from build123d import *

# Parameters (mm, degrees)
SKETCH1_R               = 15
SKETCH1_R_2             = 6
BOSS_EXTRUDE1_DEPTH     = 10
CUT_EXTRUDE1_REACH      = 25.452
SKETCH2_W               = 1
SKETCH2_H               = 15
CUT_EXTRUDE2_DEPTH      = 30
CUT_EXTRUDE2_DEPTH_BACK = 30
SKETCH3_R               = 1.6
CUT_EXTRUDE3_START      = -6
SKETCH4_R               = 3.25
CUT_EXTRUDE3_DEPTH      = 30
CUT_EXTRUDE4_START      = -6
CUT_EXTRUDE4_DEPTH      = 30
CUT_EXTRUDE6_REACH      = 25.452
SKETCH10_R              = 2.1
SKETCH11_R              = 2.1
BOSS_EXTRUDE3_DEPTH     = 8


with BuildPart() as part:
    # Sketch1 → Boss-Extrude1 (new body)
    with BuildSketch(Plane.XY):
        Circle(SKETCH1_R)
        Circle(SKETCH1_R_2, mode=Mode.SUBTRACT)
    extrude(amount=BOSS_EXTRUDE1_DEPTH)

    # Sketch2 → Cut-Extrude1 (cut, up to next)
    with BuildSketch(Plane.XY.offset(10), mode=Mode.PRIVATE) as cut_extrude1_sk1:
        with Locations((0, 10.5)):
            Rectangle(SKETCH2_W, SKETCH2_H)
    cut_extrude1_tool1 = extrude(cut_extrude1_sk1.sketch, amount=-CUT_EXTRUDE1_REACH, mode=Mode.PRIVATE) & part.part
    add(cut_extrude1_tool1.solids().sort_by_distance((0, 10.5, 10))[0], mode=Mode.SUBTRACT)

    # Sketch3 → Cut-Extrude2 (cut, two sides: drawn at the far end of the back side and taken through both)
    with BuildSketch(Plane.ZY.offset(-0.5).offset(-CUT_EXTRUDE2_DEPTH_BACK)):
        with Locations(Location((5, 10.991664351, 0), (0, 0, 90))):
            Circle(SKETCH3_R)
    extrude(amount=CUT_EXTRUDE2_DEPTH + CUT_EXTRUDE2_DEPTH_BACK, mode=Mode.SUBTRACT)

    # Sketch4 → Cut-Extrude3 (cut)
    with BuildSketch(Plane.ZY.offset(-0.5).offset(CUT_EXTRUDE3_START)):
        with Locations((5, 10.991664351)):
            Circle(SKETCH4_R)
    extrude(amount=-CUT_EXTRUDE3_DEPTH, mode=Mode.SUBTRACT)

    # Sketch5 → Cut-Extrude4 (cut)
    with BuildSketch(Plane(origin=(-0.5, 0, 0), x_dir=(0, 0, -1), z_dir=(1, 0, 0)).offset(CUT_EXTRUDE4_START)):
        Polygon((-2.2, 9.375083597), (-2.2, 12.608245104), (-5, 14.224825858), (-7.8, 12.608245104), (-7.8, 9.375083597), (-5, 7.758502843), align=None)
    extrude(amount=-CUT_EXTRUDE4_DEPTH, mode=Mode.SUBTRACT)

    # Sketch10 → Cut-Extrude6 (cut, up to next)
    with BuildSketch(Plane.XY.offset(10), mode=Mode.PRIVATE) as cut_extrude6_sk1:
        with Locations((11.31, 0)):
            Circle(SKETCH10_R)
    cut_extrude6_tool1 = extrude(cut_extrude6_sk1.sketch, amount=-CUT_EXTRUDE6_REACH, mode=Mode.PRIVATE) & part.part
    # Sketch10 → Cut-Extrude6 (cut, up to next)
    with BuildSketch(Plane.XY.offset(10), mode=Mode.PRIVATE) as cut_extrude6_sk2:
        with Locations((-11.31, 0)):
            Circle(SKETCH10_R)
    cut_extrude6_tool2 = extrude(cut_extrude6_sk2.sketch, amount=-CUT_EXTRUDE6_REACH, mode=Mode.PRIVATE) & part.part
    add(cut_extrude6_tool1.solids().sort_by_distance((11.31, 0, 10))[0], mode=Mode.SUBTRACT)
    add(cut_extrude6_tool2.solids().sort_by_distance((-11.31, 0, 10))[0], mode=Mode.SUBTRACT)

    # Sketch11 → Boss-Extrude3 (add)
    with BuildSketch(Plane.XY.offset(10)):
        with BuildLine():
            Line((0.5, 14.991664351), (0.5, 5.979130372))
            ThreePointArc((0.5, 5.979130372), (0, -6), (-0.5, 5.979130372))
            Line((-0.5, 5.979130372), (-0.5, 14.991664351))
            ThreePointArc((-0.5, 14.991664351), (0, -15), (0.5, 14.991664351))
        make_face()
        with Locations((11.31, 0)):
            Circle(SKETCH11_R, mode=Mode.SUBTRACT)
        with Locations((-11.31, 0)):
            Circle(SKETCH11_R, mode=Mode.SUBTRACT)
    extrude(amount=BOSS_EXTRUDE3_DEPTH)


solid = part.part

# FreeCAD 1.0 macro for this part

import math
import FreeCAD as App
import Part
import Sketcher
Q = App.Units.Quantity


def add_polygon(sketch, points):
    """Adds a closed chain of lines whose ends are joined by coincident constraints."""
    first, n = sketch.GeometryCount, len(points)
    for a, b in zip(points, points[1:] + points[:1]):
        sketch.addGeometry(Part.LineSegment(App.Vector(*a, 0), App.Vector(*b, 0)), False)
    for i in range(n):
        sketch.addConstraint(Sketcher.Constraint("Coincident", first + i, 2, first + (i + 1) % n, 1))

doc = App.newDocument("Part")
params = doc.addObject("Spreadsheet::Sheet", "Params")
for row, (alias, value) in enumerate([
    ("sketch1_diameter", "30 mm"),
    ("sketch1_diameter2", "12 mm"),
    ("pad1_length", "10 mm"),
    ("sketch2_width", "1 mm"),
    ("sketch2_height", "15 mm"),
    ("sketch3_diameter", "3.2 mm"),
    ("sketch4_diameter", "6.5 mm"),
    ("pocket3_length", "30 mm"),
    ("pocket4_length", "30 mm"),
    ("sketch6_diameter", "4.2 mm"),
    ("sketch7_diameter", "4.2 mm"),
    ("sketch8_radius", "6 mm"),
    ("sketch8_radius2", "15 mm"),
    ("sketch8_diameter", "4.2 mm"),
    ("pad2_length", "8 mm"),
], start=1):
    params.set(f"A{row}", alias)
    params.set(f"B{row}", "=" + value)
    params.setAlias(f"B{row}", alias)

body = doc.addObject("PartDesign::Body", "Body")

# Sketch on XY plane
sketch1 = doc.addObject("Sketcher::SketchObject", "Sketch")
body.addObject(sketch1)
sketch1.AttachmentSupport = (doc.XY_Plane, [""])
sketch1.MapMode = "FlatFace"
sketch1.addGeometry([
    Part.Circle(App.Vector(0, 0, 0), App.Vector(0, 0, 1), 15),
    Part.Circle(App.Vector(0, 0, 0), App.Vector(0, 0, 1), 6),
], False)
sketch1.addConstraint([
    Sketcher.Constraint("Coincident", 0, 3, -1, 1),
    Sketcher.Constraint("Coincident", 1, 3, -1, 1),
    Sketcher.Constraint("Diameter", 0, Q("30 mm")),
    Sketcher.Constraint("Diameter", 1, Q("12 mm")),
])
sketch1.setExpression("Constraints[2]", "Params.sketch1_diameter")
sketch1.setExpression("Constraints[3]", "Params.sketch1_diameter2")
pad1 = doc.addObject("PartDesign::Pad", "Pad")
body.addObject(pad1)
pad1.Profile = sketch1
pad1.setExpression("Length", "Params.pad1_length")

# Sketch on XY plane
sketch2 = doc.addObject("Sketcher::SketchObject", "Sketch001")
body.addObject(sketch2)
sketch2.AttachmentSupport = (doc.XY_Plane, [""])
sketch2.MapMode = "FlatFace"
sketch2.AttachmentOffset = App.Placement(App.Vector(0, 0, 10), App.Rotation())
add_polygon(sketch2, [(-0.5, 18), (-0.5, 3), (0.5, 3), (0.5, 18)])  # lines 0-3
sketch2.addConstraint([
    Sketcher.Constraint("Vertical", 0),
    Sketcher.Constraint("Horizontal", 1),
    Sketcher.Constraint("Vertical", 2),
    Sketcher.Constraint("Horizontal", 3),
    Sketcher.Constraint("DistanceX", 1, 1, 1, 2, Q("1 mm")),
    Sketcher.Constraint("DistanceY", 0, 2, 0, 1, Q("15 mm")),
    Sketcher.Constraint("DistanceY", -1, 1, 0, 2, Q("3 mm")),
    Sketcher.Constraint("DistanceX", 0, 2, -1, 1, Q("0.5 mm")),
])
sketch2.setExpression("Constraints[8]", "Params.sketch2_width")
sketch2.setExpression("Constraints[9]", "Params.sketch2_height")
pocket1 = doc.addObject("PartDesign::Pocket", "Pocket")
body.addObject(pocket1)
pocket1.Profile = sketch2
pocket1.Type = "UpToFirst"

# Sketch on YZ plane
sketch3 = doc.addObject("Sketcher::SketchObject", "Sketch002")
body.addObject(sketch3)
sketch3.AttachmentSupport = (doc.YZ_Plane, [""])
sketch3.MapMode = "FlatFace"
sketch3.AttachmentOffset = App.Placement(App.Vector(0, 0, 0.5), App.Rotation())
sketch3.addGeometry(Part.Circle(App.Vector(10.991664, 5, 0), App.Vector(0, 0, 1), 1.6), False)
sketch3.addConstraint([
    Sketcher.Constraint("Diameter", 0, Q("3.2 mm")),
    Sketcher.Constraint("DistanceY", -1, 1, 0, 3, Q("5 mm")),
    Sketcher.Constraint("DistanceX", -1, 1, 0, 3, Q("10.991664 mm")),
])
sketch3.setExpression("Constraints[0]", "Params.sketch3_diameter")
pocket2 = doc.addObject("PartDesign::Pocket", "Pocket001")
body.addObject(pocket2)
pocket2.Profile = sketch3
pocket2.Type = "ThroughAll"
pocket2.Midplane = True

# Sketch on YZ plane
sketch4 = doc.addObject("Sketcher::SketchObject", "Sketch003")
body.addObject(sketch4)
sketch4.AttachmentSupport = (doc.YZ_Plane, [""])
sketch4.MapMode = "FlatFace"
sketch4.AttachmentOffset = App.Placement(App.Vector(0, 0, 6.5), App.Rotation())
sketch4.addGeometry(Part.Circle(App.Vector(10.991664, 5, 0), App.Vector(0, 0, 1), 3.25), False)
sketch4.addConstraint([
    Sketcher.Constraint("Diameter", 0, Q("6.5 mm")),
    Sketcher.Constraint("DistanceY", -1, 1, 0, 3, Q("5 mm")),
    Sketcher.Constraint("DistanceX", -1, 1, 0, 3, Q("10.991664 mm")),
])
sketch4.setExpression("Constraints[0]", "Params.sketch4_diameter")
pocket3 = doc.addObject("PartDesign::Pocket", "Pocket002")
body.addObject(pocket3)
pocket3.Profile = sketch4
pocket3.setExpression("Length", "Params.pocket3_length")
pocket3.Reversed = True

# Sketch on YZ plane
sketch5 = doc.addObject("Sketcher::SketchObject", "Sketch004")
body.addObject(sketch5)
sketch5.AttachmentSupport = (doc.YZ_Plane, [""])
sketch5.MapMode = "FlatFace"
sketch5.AttachmentOffset = App.Placement(App.Vector(0, 0, -6.5), App.Rotation())
add_polygon(sketch5, [(9.375084, 2.2), (12.608245, 2.2), (14.224826, 5), (12.608245, 7.8), (9.375084, 7.8), (7.758503, 5)])  # lines 0-5
sketch5.addConstraint([
    Sketcher.Constraint("Horizontal", 0),
    Sketcher.Constraint("Horizontal", 3),
    Sketcher.Constraint("Parallel", 1, 4),
    Sketcher.Constraint("Parallel", 2, 5),
    Sketcher.Constraint("Horizontal", 1, 2, 4, 2),
    Sketcher.Constraint("Vertical", 0, 2, 2, 2),
    Sketcher.Constraint("Vertical", 3, 2, 5, 2),
    Sketcher.Constraint("Angle", 1, Q("60 deg")),
    Sketcher.Constraint("DistanceY", -1, 1, 1, 2, Q("5 mm")),
    Sketcher.Constraint("DistanceY", -1, 1, 0, 2, Q("2.2 mm")),
    Sketcher.Constraint("DistanceX", 0, 1, 0, 2, Q("3.233162 mm")),
    Sketcher.Constraint("DistanceX", -1, 1, 0, 2, Q("12.608245 mm")),
])
pocket4 = doc.addObject("PartDesign::Pocket", "Pocket003")
body.addObject(pocket4)
pocket4.Profile = sketch5
pocket4.setExpression("Length", "Params.pocket4_length")

# Sketch on XY plane
sketch6 = doc.addObject("Sketcher::SketchObject", "Sketch005")
body.addObject(sketch6)
sketch6.AttachmentSupport = (doc.XY_Plane, [""])
sketch6.MapMode = "FlatFace"
sketch6.AttachmentOffset = App.Placement(App.Vector(0, 0, 10), App.Rotation())
sketch6.addGeometry(Part.Circle(App.Vector(11.31, 0, 0), App.Vector(0, 0, 1), 2.1), False)
sketch6.addConstraint([
    Sketcher.Constraint("PointOnObject", 0, 3, -1),
    Sketcher.Constraint("Diameter", 0, Q("4.2 mm")),
    Sketcher.Constraint("DistanceX", -1, 1, 0, 3, Q("11.31 mm")),
])
sketch6.setExpression("Constraints[1]", "Params.sketch6_diameter")
pocket5 = doc.addObject("PartDesign::Pocket", "Pocket004")
body.addObject(pocket5)
pocket5.Profile = sketch6
pocket5.Type = "UpToFirst"

# Sketch on XY plane
sketch7 = doc.addObject("Sketcher::SketchObject", "Sketch006")
body.addObject(sketch7)
sketch7.AttachmentSupport = (doc.XY_Plane, [""])
sketch7.MapMode = "FlatFace"
sketch7.AttachmentOffset = App.Placement(App.Vector(0, 0, 10), App.Rotation())
sketch7.addGeometry(Part.Circle(App.Vector(-11.31, 0, 0), App.Vector(0, 0, 1), 2.1), False)
sketch7.addConstraint([
    Sketcher.Constraint("PointOnObject", 0, 3, -1),
    Sketcher.Constraint("Diameter", 0, Q("4.2 mm")),
    Sketcher.Constraint("DistanceX", 0, 3, -1, 1, Q("11.31 mm")),
])
sketch7.setExpression("Constraints[1]", "Params.sketch7_diameter")
pocket6 = doc.addObject("PartDesign::Pocket", "Pocket005")
body.addObject(pocket6)
pocket6.Profile = sketch7
pocket6.Type = "UpToFirst"

# Sketch on XY plane
sketch8 = doc.addObject("Sketcher::SketchObject", "Sketch007")
body.addObject(sketch8)
sketch8.AttachmentSupport = (doc.XY_Plane, [""])
sketch8.MapMode = "FlatFace"
sketch8.AttachmentOffset = App.Placement(App.Vector(0, 0, 10), App.Rotation())
sketch8.addGeometry([
    Part.LineSegment(App.Vector(0.5, 14.991664, 0), App.Vector(0.5, 5.97913, 0)),  # 0
    Part.ArcOfCircle(Part.Circle(App.Vector(0, 0, 0), App.Vector(0, 0, 1), 6), math.radians(94.780192), math.radians(445.219808)),  # 1
    Part.LineSegment(App.Vector(-0.5, 5.97913, 0), App.Vector(-0.5, 14.991664, 0)),  # 2
    Part.ArcOfCircle(Part.Circle(App.Vector(0, 0, 0), App.Vector(0, 0, 1), 15), math.radians(91.910213), math.radians(448.089787)),  # 3
    Part.Circle(App.Vector(-11.31, 0, 0), App.Vector(0, 0, 1), 2.1),  # 4
    Part.Circle(App.Vector(11.31, 0, 0), App.Vector(0, 0, 1), 2.1),  # 5
], False)
sketch8.addConstraint([
    Sketcher.Constraint("Coincident", 0, 2, 1, 2),
    Sketcher.Constraint("Coincident", 1, 1, 2, 1),
    Sketcher.Constraint("Coincident", 2, 2, 3, 1),
    Sketcher.Constraint("Coincident", 3, 2, 0, 1),
    Sketcher.Constraint("Vertical", 0),
    Sketcher.Constraint("Vertical", 2),
    Sketcher.Constraint("Coincident", 1, 3, -1, 1),
    Sketcher.Constraint("Coincident", 3, 3, -1, 1),
    Sketcher.Constraint("Equal", 4, 5),
    Sketcher.Constraint("Symmetric", 4, 3, 5, 3, -1, 1),
    Sketcher.Constraint("PointOnObject", 4, 3, -1),
    Sketcher.Constraint("Horizontal", 0, 2, 1, 1),
    Sketcher.Constraint("Radius", 1, Q("6 mm")),
    Sketcher.Constraint("Radius", 3, Q("15 mm")),
    Sketcher.Constraint("Diameter", 4, Q("4.2 mm")),
    Sketcher.Constraint("DistanceX", 1, 1, 0, 2, Q("1 mm")),
    Sketcher.Constraint("DistanceX", 4, 3, -1, 1, Q("11.31 mm")),
])
sketch8.setExpression("Constraints[12]", "Params.sketch8_radius")
sketch8.setExpression("Constraints[13]", "Params.sketch8_radius2")
sketch8.setExpression("Constraints[14]", "Params.sketch8_diameter")
pad2 = doc.addObject("PartDesign::Pad", "Pad001")
body.addObject(pad2)
pad2.Profile = sketch8
pad2.setExpression("Length", "Params.pad2_length")

doc.recompute()
